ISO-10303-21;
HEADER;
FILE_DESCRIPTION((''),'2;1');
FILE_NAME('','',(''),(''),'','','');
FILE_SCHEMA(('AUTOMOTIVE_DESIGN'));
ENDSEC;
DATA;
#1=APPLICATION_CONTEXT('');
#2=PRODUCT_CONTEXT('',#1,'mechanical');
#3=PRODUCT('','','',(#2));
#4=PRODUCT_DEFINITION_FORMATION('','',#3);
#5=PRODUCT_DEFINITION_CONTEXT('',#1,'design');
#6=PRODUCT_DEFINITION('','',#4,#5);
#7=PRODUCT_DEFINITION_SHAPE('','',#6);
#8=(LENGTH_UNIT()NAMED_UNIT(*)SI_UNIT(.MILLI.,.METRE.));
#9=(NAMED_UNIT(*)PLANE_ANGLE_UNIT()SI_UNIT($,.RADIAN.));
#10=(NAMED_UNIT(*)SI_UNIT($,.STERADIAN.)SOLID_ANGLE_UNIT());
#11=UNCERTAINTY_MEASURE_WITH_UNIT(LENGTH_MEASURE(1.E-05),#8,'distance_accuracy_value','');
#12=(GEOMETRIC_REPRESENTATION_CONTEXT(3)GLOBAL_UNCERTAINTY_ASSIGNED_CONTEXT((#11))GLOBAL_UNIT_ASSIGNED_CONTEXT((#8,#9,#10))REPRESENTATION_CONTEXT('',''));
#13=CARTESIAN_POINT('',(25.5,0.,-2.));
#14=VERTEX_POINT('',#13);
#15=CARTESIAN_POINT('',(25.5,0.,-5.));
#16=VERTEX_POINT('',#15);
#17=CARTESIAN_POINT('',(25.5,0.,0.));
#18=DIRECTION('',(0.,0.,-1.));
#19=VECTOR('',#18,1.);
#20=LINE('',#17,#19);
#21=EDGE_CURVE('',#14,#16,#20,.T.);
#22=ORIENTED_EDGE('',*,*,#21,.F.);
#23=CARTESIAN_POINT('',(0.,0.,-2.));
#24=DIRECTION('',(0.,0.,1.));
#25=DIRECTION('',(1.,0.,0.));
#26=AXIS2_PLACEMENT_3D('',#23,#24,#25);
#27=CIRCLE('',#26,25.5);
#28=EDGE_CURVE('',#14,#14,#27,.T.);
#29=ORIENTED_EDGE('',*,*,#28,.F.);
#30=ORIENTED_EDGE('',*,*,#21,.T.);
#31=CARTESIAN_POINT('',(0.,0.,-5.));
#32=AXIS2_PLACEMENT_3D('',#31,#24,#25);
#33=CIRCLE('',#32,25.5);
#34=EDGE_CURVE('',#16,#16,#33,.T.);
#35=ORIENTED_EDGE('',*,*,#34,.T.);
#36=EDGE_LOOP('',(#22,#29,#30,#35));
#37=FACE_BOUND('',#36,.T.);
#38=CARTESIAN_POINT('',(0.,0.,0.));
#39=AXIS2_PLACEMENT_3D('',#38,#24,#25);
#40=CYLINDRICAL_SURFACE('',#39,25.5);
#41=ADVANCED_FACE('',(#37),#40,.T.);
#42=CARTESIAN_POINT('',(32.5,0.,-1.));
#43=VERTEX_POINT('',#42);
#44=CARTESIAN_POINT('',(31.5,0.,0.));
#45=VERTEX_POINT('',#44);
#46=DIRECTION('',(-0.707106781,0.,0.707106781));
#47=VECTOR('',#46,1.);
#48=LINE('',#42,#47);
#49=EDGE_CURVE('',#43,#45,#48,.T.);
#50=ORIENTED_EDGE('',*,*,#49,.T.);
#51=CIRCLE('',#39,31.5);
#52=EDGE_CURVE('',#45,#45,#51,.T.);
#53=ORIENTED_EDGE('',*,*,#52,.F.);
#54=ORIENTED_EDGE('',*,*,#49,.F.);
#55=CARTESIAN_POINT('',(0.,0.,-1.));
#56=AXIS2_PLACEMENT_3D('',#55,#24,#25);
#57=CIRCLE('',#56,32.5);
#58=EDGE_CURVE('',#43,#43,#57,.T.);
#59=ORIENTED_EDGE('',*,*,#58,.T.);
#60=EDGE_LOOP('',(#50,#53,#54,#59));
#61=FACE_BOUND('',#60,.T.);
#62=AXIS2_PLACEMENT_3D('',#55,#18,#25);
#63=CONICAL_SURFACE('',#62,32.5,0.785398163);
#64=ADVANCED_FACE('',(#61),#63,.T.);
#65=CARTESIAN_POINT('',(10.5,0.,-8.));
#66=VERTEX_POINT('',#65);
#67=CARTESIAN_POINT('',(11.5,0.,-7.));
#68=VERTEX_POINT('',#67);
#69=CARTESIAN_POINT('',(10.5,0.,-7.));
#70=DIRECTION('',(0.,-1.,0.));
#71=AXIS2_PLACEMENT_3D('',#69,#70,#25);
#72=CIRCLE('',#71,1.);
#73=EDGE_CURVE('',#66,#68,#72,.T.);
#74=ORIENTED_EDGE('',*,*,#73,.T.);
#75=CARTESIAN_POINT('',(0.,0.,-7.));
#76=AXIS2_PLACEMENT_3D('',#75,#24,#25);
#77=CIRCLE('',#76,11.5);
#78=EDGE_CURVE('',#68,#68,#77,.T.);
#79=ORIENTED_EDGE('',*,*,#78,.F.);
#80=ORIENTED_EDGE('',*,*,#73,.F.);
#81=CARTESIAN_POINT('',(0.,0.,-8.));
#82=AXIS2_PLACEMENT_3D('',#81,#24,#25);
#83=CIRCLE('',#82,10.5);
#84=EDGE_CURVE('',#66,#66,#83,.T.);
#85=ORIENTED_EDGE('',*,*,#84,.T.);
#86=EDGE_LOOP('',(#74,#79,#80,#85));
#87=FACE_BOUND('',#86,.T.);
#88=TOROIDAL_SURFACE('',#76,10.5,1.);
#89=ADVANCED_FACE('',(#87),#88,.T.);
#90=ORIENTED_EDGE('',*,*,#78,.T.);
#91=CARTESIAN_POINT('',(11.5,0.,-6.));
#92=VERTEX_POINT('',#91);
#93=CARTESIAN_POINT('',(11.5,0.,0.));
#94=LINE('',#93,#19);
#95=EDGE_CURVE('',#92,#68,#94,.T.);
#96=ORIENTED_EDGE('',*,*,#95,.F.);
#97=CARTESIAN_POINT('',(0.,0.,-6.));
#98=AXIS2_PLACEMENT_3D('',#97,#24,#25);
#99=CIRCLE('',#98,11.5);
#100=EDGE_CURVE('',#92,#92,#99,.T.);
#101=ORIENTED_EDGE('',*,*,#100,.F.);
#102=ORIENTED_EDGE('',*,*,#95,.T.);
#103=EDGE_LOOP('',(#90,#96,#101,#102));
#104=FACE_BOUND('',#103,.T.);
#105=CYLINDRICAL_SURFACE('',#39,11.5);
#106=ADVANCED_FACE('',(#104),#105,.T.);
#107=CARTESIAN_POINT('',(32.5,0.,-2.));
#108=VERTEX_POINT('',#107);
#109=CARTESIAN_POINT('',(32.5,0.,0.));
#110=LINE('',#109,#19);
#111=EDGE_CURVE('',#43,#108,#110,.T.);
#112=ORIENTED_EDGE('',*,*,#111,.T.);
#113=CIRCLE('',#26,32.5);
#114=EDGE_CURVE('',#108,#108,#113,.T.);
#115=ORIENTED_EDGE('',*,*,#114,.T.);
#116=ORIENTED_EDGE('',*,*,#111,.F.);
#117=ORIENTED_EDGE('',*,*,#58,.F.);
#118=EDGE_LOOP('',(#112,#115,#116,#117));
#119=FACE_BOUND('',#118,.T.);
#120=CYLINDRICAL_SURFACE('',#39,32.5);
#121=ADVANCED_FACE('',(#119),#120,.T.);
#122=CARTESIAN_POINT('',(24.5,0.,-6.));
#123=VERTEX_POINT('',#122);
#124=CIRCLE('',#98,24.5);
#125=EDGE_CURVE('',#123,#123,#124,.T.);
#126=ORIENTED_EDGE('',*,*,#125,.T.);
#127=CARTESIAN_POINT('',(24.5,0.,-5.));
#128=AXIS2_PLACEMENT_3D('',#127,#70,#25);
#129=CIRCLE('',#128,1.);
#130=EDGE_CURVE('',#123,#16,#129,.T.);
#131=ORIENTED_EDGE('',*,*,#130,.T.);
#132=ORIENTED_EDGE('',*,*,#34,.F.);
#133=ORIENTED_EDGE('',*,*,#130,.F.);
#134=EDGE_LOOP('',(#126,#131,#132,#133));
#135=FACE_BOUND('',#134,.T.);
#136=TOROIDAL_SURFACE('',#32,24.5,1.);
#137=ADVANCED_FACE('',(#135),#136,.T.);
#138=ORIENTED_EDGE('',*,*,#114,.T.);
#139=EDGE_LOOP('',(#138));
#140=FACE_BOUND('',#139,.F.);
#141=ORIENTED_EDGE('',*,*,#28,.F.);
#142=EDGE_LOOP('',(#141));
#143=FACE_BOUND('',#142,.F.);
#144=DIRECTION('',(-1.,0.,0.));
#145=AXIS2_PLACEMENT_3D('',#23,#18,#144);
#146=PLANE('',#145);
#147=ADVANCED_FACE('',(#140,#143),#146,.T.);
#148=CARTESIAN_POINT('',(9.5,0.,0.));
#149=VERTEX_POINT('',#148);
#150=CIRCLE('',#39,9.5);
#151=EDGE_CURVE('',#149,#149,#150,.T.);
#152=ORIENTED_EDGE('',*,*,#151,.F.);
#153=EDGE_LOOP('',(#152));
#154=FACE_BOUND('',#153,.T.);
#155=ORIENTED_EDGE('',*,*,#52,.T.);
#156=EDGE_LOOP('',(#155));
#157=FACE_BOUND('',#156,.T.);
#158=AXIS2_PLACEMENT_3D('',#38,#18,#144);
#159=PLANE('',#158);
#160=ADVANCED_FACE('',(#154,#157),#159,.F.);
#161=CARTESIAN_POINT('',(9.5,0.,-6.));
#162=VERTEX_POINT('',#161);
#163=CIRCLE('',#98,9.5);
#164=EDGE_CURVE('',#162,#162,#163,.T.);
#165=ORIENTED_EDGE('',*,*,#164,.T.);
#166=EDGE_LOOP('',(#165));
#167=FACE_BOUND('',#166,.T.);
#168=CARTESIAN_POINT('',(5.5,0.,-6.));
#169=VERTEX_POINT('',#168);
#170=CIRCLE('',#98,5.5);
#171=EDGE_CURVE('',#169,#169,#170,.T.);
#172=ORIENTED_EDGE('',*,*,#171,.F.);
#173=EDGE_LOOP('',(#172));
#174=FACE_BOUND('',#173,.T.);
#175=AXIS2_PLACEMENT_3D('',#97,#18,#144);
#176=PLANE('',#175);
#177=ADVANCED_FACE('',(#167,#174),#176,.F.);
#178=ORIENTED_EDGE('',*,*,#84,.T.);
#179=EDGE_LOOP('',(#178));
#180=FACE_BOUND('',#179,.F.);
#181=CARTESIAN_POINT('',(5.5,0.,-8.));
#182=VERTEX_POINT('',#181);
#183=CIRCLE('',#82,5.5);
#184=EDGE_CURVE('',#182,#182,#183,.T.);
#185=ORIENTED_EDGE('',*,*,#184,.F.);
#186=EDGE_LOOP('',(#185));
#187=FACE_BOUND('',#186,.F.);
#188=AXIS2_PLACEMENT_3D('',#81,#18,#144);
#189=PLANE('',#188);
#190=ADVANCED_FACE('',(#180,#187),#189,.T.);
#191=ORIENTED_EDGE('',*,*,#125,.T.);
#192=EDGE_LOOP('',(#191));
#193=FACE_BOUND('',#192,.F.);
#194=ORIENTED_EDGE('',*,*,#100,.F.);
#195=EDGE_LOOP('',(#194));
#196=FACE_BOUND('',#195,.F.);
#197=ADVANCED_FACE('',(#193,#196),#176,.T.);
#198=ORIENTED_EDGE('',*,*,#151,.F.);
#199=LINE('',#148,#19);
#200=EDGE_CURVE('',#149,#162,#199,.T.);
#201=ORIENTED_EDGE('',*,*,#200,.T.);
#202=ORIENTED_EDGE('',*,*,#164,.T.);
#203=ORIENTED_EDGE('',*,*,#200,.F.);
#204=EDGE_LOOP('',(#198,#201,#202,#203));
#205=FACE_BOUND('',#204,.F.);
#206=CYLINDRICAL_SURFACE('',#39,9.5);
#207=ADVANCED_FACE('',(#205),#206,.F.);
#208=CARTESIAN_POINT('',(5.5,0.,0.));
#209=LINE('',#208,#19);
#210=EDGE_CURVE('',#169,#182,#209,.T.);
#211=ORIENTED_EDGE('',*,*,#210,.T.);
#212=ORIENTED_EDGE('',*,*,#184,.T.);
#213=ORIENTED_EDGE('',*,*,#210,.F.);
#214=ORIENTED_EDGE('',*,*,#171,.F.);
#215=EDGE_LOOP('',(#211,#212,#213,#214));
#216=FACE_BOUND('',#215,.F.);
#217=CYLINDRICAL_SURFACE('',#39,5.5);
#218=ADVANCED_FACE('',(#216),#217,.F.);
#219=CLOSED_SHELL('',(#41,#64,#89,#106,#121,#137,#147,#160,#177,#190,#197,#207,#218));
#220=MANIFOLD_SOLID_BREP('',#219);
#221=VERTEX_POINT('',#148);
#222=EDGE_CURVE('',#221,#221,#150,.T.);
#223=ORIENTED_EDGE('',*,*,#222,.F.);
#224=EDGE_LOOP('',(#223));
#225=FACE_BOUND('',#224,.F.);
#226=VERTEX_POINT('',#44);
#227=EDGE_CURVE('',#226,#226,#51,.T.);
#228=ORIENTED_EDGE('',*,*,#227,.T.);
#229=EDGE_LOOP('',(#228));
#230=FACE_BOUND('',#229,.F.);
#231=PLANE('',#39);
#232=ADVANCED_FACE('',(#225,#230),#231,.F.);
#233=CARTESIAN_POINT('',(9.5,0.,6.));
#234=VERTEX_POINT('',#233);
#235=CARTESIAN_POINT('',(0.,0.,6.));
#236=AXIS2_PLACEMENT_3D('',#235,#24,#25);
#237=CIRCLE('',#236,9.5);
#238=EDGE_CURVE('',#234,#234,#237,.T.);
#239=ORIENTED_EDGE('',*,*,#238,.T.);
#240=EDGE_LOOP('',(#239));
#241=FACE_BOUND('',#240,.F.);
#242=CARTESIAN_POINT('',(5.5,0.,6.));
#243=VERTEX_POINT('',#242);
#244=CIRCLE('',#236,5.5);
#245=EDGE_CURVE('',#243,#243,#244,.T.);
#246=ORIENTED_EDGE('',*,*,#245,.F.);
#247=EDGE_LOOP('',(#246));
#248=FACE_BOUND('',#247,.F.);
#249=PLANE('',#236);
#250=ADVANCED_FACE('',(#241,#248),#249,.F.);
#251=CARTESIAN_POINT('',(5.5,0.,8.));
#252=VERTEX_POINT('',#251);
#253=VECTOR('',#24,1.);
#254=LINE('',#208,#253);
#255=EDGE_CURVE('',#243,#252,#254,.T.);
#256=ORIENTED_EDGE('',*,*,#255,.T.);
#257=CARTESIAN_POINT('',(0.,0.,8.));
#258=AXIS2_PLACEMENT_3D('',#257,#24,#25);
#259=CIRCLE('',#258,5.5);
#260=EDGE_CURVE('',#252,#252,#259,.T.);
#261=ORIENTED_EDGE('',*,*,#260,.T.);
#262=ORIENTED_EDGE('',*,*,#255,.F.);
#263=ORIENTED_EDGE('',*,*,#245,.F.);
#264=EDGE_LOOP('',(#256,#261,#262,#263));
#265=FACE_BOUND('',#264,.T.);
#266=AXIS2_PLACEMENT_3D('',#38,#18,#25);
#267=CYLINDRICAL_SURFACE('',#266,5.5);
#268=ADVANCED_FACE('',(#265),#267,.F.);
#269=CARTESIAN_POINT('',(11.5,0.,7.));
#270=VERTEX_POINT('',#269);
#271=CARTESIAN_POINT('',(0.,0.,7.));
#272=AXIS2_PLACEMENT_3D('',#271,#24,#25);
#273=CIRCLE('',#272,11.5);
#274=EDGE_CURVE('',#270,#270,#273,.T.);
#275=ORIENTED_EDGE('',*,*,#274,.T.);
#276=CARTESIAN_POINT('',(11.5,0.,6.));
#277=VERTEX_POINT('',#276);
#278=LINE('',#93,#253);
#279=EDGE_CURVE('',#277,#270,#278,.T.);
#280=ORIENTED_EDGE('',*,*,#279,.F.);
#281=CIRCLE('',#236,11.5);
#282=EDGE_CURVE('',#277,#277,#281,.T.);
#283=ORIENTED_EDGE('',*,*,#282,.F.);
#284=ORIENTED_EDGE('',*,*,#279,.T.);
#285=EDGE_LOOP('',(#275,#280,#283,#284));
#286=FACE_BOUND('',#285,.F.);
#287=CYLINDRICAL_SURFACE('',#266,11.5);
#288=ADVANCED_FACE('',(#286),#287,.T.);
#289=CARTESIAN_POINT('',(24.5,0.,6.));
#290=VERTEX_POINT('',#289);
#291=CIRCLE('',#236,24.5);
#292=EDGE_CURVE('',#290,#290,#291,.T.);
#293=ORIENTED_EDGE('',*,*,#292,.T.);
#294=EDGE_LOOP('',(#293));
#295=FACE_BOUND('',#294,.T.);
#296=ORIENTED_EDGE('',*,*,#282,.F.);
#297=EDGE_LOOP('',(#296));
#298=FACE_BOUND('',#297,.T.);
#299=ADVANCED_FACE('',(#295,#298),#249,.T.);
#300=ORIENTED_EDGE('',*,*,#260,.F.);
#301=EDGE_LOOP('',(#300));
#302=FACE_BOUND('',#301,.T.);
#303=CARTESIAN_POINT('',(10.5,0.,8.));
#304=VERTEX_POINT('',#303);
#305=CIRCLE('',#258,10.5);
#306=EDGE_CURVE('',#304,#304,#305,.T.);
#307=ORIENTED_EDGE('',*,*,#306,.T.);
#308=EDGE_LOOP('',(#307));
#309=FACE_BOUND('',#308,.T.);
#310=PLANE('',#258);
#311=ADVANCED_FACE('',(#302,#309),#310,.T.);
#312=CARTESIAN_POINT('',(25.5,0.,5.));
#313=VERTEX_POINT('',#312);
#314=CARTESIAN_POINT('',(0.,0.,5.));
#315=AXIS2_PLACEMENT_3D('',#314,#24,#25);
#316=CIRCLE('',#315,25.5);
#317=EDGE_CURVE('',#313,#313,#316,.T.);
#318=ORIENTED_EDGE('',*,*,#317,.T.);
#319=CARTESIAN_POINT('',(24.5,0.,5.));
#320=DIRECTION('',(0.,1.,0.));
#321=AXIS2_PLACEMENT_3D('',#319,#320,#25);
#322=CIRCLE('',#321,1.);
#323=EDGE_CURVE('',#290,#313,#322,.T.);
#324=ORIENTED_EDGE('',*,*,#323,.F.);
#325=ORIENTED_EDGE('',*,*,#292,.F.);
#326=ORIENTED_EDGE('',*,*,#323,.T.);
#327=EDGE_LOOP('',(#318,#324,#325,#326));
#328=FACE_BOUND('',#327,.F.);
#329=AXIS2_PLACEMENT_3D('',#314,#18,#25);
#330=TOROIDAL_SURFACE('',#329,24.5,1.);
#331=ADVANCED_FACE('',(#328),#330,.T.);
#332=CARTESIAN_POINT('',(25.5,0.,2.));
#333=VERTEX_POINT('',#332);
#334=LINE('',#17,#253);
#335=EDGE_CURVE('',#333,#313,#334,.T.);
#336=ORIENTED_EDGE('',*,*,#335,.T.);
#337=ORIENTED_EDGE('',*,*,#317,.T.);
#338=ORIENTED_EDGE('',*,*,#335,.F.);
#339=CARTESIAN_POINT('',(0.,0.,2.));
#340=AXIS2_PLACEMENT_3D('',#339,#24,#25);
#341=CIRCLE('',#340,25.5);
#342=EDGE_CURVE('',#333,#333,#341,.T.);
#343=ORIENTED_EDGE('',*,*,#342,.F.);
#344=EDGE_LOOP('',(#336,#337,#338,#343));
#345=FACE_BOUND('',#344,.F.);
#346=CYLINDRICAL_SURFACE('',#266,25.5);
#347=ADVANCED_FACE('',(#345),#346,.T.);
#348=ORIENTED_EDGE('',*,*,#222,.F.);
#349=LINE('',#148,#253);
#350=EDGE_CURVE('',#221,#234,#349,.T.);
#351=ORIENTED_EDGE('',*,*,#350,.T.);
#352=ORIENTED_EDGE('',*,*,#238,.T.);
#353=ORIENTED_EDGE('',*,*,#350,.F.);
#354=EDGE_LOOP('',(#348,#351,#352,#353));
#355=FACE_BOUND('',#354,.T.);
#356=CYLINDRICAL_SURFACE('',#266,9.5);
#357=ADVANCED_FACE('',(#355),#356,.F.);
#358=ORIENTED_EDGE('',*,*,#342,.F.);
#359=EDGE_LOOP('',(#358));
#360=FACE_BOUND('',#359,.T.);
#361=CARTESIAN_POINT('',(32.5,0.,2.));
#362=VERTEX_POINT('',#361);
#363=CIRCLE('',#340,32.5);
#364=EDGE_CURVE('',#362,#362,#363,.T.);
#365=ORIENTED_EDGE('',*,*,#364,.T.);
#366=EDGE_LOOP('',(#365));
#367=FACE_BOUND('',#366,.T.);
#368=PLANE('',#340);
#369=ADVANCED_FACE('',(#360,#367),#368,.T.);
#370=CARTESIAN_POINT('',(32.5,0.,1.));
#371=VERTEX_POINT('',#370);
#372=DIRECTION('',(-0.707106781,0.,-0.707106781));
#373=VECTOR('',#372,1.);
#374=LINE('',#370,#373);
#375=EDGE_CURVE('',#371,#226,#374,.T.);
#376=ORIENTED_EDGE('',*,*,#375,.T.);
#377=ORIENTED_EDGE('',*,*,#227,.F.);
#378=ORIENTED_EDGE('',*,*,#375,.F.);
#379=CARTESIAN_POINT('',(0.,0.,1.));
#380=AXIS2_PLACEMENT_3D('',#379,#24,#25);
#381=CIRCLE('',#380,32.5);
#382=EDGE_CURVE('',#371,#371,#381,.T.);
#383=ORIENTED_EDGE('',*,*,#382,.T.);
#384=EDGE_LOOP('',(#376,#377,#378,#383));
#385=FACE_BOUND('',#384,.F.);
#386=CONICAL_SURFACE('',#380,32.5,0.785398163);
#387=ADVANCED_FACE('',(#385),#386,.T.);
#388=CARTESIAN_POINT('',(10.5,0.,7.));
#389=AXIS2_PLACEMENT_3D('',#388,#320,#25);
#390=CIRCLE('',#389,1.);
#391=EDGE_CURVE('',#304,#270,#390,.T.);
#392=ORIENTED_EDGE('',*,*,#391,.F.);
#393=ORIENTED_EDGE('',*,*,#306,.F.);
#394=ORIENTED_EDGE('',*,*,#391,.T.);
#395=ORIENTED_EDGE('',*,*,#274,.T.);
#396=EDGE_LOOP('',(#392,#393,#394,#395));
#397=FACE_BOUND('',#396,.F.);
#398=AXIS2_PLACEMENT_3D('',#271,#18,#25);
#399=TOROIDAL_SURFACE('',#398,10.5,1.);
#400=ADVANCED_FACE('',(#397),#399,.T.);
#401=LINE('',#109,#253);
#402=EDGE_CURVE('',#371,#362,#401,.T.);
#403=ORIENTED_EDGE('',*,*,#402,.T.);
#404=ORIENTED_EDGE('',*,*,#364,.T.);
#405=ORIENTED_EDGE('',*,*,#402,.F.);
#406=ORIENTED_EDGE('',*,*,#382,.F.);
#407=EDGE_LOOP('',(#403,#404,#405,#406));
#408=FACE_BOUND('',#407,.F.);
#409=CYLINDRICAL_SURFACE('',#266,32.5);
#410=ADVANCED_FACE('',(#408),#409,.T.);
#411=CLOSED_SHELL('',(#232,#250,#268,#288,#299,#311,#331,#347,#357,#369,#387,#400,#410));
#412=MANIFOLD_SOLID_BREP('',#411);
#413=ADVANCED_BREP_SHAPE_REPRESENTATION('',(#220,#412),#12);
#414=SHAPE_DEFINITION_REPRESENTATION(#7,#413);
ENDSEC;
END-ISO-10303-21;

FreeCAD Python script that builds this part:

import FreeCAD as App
import Part
import Sketcher


def edges_at(feature, points):
    """Names of the edges that pass closest to the given points."""
    edges = feature.Shape.Edges
    near = lambda p: min(range(len(edges)), key=lambda i: edges[i].distToShape(Part.Vertex(*p))[0])
    return sorted({f"Edge{near(p) + 1}" for p in points})

doc = App.newDocument("Part")
params = doc.addObject("Spreadsheet::Sheet", "Params")
for row, (alias, value) in enumerate([
    ("sketch1_diameter", "65 mm"),
    ("sketch1_diameter2", "51 mm"),
    ("pad1_length", "2 mm"),
    ("sketch2_diameter", "51 mm"),
    ("sketch2_diameter2", "23 mm"),
    ("pad2_length", "6 mm"),
    ("sketch3_diameter", "23 mm"),
    ("sketch3_diameter2", "19 mm"),
    ("pad3_length", "8 mm"),
    ("sketch4_diameter", "19 mm"),
    ("sketch4_diameter2", "11 mm"),
    ("pad4_length", "8 mm"),
    ("sketch5_diameter", "19 mm"),
    ("sketch5_diameter2", "11 mm"),
    ("pocket1_length", "6 mm"),
    ("fillet_radius", "1 mm"),
    ("fillet2_radius", "1 mm"),
    ("chamfer_size", "1 mm"),
], start=1):
    params.set(f"A{row}", alias)
    params.set(f"B{row}", "=" + value)
    params.setAlias(f"B{row}", alias)

body = doc.addObject("PartDesign::Body", "Body")

# Sketch on XY plane
sketch1 = body.newObject("Sketcher::SketchObject", "Sketch")
sketch1.AttachmentSupport = (doc.getObject("XY_Plane"), [""])
sketch1.MapMode = "FlatFace"
sketch1.addGeometry(Part.Circle(App.Vector(0, 0, 0), App.Vector(0, 0, 1), 32), False)
sketch1.addGeometry(Part.Circle(App.Vector(0, 0, 0), App.Vector(0, 0, 1), 26), False)
sketch1.addConstraint(Sketcher.Constraint("Coincident", 0, 3, -1, 1))
sketch1.addConstraint(Sketcher.Constraint("Coincident", 1, 3, -1, 1))
sketch1.addConstraint(Sketcher.Constraint("Diameter", 0, 65.0))
sketch1.addConstraint(Sketcher.Constraint("Diameter", 1, 51.0))
sketch1.setExpression("Constraints[2]", "Params.sketch1_diameter")
sketch1.setExpression("Constraints[3]", "Params.sketch1_diameter2")
pad1 = body.newObject("PartDesign::Pad", "Pad")
pad1.Profile = sketch1
pad1.setExpression("Length", "Params.pad1_length")

# Sketch on XY plane
sketch2 = body.newObject("Sketcher::SketchObject", "Sketch001")
sketch2.AttachmentSupport = (doc.getObject("XY_Plane"), [""])
sketch2.MapMode = "FlatFace"
sketch2.addGeometry(Part.Circle(App.Vector(0, 0, 0), App.Vector(0, 0, 1), 26), False)
sketch2.addGeometry(Part.Circle(App.Vector(0, 0, 0), App.Vector(0, 0, 1), 12), False)
sketch2.addConstraint(Sketcher.Constraint("Coincident", 0, 3, -1, 1))
sketch2.addConstraint(Sketcher.Constraint("Coincident", 1, 3, -1, 1))
sketch2.addConstraint(Sketcher.Constraint("Diameter", 0, 51.0))
sketch2.addConstraint(Sketcher.Constraint("Diameter", 1, 23.0))
sketch2.setExpression("Constraints[2]", "Params.sketch2_diameter")
sketch2.setExpression("Constraints[3]", "Params.sketch2_diameter2")
pad2 = body.newObject("PartDesign::Pad", "Pad001")
pad2.Profile = sketch2
pad2.setExpression("Length", "Params.pad2_length")

# Sketch on XY plane
sketch3 = body.newObject("Sketcher::SketchObject", "Sketch002")
sketch3.AttachmentSupport = (doc.getObject("XY_Plane"), [""])
sketch3.MapMode = "FlatFace"
sketch3.addGeometry(Part.Circle(App.Vector(0, 0, 0), App.Vector(0, 0, 1), 12), False)
sketch3.addGeometry(Part.Circle(App.Vector(0, 0, 0), App.Vector(0, 0, 1), 10), False)
sketch3.addConstraint(Sketcher.Constraint("Coincident", 0, 3, -1, 1))
sketch3.addConstraint(Sketcher.Constraint("Coincident", 1, 3, -1, 1))
sketch3.addConstraint(Sketcher.Constraint("Diameter", 0, 23.0))
sketch3.addConstraint(Sketcher.Constraint("Diameter", 1, 19.0))
sketch3.setExpression("Constraints[2]", "Params.sketch3_diameter")
sketch3.setExpression("Constraints[3]", "Params.sketch3_diameter2")
pad3 = body.newObject("PartDesign::Pad", "Pad002")
pad3.Profile = sketch3
pad3.setExpression("Length", "Params.pad3_length")

# Sketch on XY plane
sketch4 = body.newObject("Sketcher::SketchObject", "Sketch003")
sketch4.AttachmentSupport = (doc.getObject("XY_Plane"), [""])
sketch4.MapMode = "FlatFace"
sketch4.addGeometry(Part.Circle(App.Vector(0, 0, 0), App.Vector(0, 0, 1), 10), False)
sketch4.addGeometry(Part.Circle(App.Vector(0, 0, 0), App.Vector(0, 0, 1), 6), False)
sketch4.addConstraint(Sketcher.Constraint("Coincident", 0, 3, -1, 1))
sketch4.addConstraint(Sketcher.Constraint("Coincident", 1, 3, -1, 1))
sketch4.addConstraint(Sketcher.Constraint("Diameter", 0, 19.0))
sketch4.addConstraint(Sketcher.Constraint("Diameter", 1, 11.0))
sketch4.setExpression("Constraints[2]", "Params.sketch4_diameter")
sketch4.setExpression("Constraints[3]", "Params.sketch4_diameter2")
pad4 = body.newObject("PartDesign::Pad", "Pad003")
pad4.Profile = sketch4
pad4.setExpression("Length", "Params.pad4_length")

# Sketch on XY plane
sketch5 = body.newObject("Sketcher::SketchObject", "Sketch004")
sketch5.AttachmentSupport = (doc.getObject("XY_Plane"), [""])
sketch5.MapMode = "FlatFace"
sketch5.addGeometry(Part.Circle(App.Vector(0, 0, 0), App.Vector(0, 0, 1), 10), False)
sketch5.addGeometry(Part.Circle(App.Vector(0, 0, 0), App.Vector(0, 0, 1), 6), False)
sketch5.addConstraint(Sketcher.Constraint("Coincident", 0, 3, -1, 1))
sketch5.addConstraint(Sketcher.Constraint("Coincident", 1, 3, -1, 1))
sketch5.addConstraint(Sketcher.Constraint("Diameter", 0, 19.0))
sketch5.addConstraint(Sketcher.Constraint("Diameter", 1, 11.0))
sketch5.setExpression("Constraints[2]", "Params.sketch5_diameter")
sketch5.setExpression("Constraints[3]", "Params.sketch5_diameter2")
pocket1 = body.newObject("PartDesign::Pocket", "Pocket")
pocket1.Profile = sketch5
pocket1.setExpression("Length", "Params.pocket1_length")
pocket1.Reversed = True
doc.recompute()

fillet = body.newObject("PartDesign::Fillet", "Fillet")
fillet.Base = (pocket1, edges_at(pocket1, [(-11.5, 0, 8)]))
fillet.setExpression("Radius", "Params.fillet_radius")
doc.recompute()

fillet2 = body.newObject("PartDesign::Fillet", "Fillet001")
fillet2.Base = (fillet, edges_at(fillet, [(-25.5, 0, 6)]))
fillet2.setExpression("Radius", "Params.fillet2_radius")
doc.recompute()

chamfer = body.newObject("PartDesign::Chamfer", "Chamfer")
chamfer.Base = (fillet2, edges_at(fillet2, [(-32.5, 0, 0)]))
chamfer.setExpression("Size", "Params.chamfer_size")
body2 = doc.addObject("PartDesign::Body", "Body001")
doc.recompute()

mirroring = doc.addObject("Part::Mirroring", "Mirroring")
mirroring.Source = body
mirroring.Base = App.Vector(0, 0, 0)
mirroring.Normal = App.Vector(0, 0, -1)
body2.BaseFeature = mirroring
doc.recompute()
mirroring.Visibility = False

doc.recompute()
